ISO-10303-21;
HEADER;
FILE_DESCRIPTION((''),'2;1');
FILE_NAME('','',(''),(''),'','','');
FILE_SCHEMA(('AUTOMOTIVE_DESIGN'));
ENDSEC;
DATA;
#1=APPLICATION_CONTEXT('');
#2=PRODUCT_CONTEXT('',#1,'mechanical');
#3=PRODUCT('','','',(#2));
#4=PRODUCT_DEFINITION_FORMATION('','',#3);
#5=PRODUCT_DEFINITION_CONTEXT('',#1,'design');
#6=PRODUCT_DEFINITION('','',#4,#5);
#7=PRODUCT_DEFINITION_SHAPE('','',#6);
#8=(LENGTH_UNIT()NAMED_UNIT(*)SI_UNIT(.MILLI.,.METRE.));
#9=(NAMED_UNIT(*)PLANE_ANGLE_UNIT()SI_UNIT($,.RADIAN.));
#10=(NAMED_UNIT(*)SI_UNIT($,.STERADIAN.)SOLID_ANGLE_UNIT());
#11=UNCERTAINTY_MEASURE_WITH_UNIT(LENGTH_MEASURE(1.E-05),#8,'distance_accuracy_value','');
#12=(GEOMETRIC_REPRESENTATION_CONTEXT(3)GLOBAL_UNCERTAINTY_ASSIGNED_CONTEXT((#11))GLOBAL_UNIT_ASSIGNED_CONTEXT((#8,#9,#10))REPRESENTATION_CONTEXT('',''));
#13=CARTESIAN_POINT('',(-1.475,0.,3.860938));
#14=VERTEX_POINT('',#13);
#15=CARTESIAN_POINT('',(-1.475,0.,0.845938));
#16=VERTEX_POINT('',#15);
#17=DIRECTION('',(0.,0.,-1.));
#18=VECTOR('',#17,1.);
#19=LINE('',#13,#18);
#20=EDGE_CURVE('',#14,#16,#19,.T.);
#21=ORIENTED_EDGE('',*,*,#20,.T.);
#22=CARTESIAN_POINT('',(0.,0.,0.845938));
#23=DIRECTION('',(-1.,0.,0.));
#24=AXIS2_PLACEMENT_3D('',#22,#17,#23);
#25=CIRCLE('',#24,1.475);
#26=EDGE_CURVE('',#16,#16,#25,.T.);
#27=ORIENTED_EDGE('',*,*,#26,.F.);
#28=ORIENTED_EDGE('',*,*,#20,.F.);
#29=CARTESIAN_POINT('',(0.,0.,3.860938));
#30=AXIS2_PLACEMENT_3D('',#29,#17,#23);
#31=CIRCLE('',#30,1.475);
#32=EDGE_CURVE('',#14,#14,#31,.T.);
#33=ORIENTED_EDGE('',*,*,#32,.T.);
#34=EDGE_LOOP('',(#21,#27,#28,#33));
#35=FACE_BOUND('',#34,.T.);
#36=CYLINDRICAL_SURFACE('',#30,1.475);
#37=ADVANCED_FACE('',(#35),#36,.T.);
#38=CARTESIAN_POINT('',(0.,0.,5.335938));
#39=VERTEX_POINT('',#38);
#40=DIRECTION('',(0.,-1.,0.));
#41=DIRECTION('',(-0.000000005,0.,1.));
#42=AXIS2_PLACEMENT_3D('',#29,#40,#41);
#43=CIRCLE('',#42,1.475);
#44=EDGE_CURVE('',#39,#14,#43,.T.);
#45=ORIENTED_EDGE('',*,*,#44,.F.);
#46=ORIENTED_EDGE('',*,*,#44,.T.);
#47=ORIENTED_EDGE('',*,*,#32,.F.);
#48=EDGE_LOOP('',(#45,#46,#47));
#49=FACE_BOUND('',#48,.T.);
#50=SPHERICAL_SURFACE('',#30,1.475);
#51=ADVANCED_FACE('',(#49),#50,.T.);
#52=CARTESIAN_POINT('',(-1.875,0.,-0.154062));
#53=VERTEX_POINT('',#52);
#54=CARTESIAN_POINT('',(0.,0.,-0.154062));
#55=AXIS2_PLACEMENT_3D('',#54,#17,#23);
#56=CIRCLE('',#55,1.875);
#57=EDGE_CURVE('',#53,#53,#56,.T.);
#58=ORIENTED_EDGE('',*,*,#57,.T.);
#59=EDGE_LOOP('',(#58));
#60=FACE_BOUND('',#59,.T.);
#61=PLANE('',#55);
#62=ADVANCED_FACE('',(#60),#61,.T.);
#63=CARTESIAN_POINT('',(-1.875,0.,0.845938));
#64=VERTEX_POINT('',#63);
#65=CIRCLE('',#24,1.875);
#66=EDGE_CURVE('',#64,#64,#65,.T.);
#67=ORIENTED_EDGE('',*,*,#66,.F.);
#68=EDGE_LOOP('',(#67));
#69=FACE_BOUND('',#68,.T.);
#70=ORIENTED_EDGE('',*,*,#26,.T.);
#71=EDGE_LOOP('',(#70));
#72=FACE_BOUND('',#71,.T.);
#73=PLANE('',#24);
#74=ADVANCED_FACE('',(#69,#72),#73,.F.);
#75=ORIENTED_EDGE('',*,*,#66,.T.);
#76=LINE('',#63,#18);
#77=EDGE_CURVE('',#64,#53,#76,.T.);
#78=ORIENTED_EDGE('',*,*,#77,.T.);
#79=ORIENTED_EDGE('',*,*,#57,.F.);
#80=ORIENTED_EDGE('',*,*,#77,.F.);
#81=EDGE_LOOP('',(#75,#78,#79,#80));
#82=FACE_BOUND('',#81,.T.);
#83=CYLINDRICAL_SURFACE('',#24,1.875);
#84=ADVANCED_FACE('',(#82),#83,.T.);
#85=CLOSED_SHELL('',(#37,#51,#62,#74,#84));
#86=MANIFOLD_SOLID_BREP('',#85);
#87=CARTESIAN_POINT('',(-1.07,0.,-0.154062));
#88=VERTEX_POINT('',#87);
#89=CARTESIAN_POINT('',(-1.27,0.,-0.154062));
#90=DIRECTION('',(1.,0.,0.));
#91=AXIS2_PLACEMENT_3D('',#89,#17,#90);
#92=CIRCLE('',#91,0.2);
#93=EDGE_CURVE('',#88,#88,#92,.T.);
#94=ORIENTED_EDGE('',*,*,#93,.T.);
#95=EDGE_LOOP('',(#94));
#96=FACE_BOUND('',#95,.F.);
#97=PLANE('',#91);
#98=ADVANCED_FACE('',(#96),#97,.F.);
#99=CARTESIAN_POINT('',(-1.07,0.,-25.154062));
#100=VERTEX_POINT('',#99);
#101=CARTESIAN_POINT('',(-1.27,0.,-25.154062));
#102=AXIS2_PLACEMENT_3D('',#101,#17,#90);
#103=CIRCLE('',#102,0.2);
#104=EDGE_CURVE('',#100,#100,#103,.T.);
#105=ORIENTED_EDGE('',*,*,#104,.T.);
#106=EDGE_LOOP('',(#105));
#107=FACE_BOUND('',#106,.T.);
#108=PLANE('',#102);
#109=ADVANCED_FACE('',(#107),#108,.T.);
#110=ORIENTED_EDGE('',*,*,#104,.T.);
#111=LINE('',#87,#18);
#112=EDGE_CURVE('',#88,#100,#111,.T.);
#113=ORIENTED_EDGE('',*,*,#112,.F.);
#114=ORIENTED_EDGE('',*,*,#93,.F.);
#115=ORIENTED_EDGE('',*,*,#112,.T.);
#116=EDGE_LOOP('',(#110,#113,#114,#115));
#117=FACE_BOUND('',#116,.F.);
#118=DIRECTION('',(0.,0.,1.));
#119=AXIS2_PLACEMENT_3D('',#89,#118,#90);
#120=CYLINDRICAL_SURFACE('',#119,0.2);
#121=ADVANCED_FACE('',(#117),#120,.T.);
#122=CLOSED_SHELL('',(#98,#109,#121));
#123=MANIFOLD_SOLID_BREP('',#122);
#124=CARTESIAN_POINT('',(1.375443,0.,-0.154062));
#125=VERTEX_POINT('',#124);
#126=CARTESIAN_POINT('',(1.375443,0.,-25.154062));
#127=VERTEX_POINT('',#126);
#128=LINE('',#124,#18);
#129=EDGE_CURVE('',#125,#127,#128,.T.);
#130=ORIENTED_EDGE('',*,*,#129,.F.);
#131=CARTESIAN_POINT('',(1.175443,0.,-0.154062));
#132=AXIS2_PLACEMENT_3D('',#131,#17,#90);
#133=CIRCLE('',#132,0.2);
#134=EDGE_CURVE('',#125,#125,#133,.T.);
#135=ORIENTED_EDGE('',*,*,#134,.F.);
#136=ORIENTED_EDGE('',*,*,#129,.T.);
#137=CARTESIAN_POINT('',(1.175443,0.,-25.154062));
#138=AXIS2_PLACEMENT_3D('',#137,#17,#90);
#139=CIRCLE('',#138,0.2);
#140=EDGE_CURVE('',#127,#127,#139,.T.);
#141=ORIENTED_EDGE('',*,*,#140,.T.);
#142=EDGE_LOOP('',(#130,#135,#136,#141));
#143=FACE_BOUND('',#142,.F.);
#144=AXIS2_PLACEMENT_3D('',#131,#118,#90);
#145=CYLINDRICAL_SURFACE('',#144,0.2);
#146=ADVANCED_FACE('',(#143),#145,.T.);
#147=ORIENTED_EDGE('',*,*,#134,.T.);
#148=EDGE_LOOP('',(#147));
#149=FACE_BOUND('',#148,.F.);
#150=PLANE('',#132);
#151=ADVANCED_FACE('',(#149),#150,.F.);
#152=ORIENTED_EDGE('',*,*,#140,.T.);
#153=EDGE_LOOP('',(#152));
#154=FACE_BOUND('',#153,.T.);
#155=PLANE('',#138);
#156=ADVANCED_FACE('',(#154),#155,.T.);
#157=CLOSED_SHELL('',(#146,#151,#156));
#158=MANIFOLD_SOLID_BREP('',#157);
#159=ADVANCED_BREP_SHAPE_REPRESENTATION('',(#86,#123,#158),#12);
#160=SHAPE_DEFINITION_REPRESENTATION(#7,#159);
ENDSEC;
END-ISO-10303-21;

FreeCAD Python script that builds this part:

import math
import FreeCAD as App
import Part
import Sketcher
from FreeCAD import Vector

doc = App.newDocument("Part")
body = doc.addObject("PartDesign::Body", "Body")

# Sketch on XZ plane
sketch1 = body.newObject("Sketcher::SketchObject", "Sketch")
sketch1.AttachmentSupport = (doc.getObject("XZ_Plane"), [""])
sketch1.MapMode = "FlatFace"
sketch1.addGeometry([
    Part.LineSegment(Vector(0, -0.15, 0), Vector(0, 5.34, 0)),  # 0
    Part.ArcOfCircle(Part.Circle(Vector(0, 3.86, 0), Vector(0, 0, 1), 1.48), math.radians(90), math.radians(180)),  # 1
    Part.LineSegment(Vector(-1.48, 3.86, 0), Vector(-1.48, 0.85, 0)),  # 2
    Part.LineSegment(Vector(-1.48, 0.85, 0), Vector(-1.88, 0.85, 0)),  # 3
    Part.LineSegment(Vector(-1.88, 0.85, 0), Vector(-1.88, -0.15, 0)),  # 4
    Part.LineSegment(Vector(-1.88, -0.15, 0), Vector(0, -0.15, 0)),  # 5
], False)
sketch1.addConstraint([
    Sketcher.Constraint("Coincident", 0, 2, 1, 1),
    Sketcher.Constraint("Tangent", 1, 2, 2, 1),
    Sketcher.Constraint("Coincident", 2, 2, 3, 1),
    Sketcher.Constraint("Coincident", 3, 2, 4, 1),
    Sketcher.Constraint("Coincident", 4, 2, 5, 1),
    Sketcher.Constraint("Coincident", 5, 2, 0, 1),
    Sketcher.Constraint("Vertical", 0),
    Sketcher.Constraint("Vertical", 2),
    Sketcher.Constraint("Horizontal", 3),
    Sketcher.Constraint("Vertical", 4),
    Sketcher.Constraint("Horizontal", 5),
    Sketcher.Constraint("PointOnObject", 1, 3, -2),
    Sketcher.Constraint("PointOnObject", 0, 2, -2),
    Sketcher.Constraint("DistanceY", 4, 2, 4, 1, 1.0),
    Sketcher.Constraint("DistanceX", 3, 2, 3, 1, 0.4),
    Sketcher.Constraint("Radius", 1, 1.475),
    Sketcher.Constraint("DistanceY", 0, 1, 0, 2, 5.49),
    Sketcher.Constraint("DistanceY", -1, 1, 1, 2, 3.860938),
])
revolution = body.newObject("PartDesign::Revolution", "Revolution")
revolution.Profile = sketch1
revolution.ReferenceAxis = (sketch1, ["V_Axis"])
revolution.Angle = 360
body2 = doc.addObject("PartDesign::Body", "Body001")
body2.AllowCompound = True

# Sketch on XY plane
sketch2 = body2.newObject("Sketcher::SketchObject", "Sketch001")
sketch2.AttachmentSupport = (doc.getObject("XY_Plane001"), [""])
sketch2.MapMode = "FlatFace"
sketch2.AttachmentOffset = App.Placement(Vector(0, 0, -0.154062), App.Rotation())
sketch2.addGeometry([
    Part.Circle(Vector(-1.27, 0, 0), Vector(0, 0, 1), 0.2),
    Part.Circle(Vector(1.18, 0, 0), Vector(0, 0, 1), 0.2),
], False)
sketch2.addConstraint([
    Sketcher.Constraint("Equal", 0, 1),
    Sketcher.Constraint("PointOnObject", 0, 3, -1),
    Sketcher.Constraint("PointOnObject", 1, 3, -1),
    Sketcher.Constraint("Diameter", 0, 0.4),
    Sketcher.Constraint("DistanceX", 0, 3, -1, 1, 1.27),
    Sketcher.Constraint("DistanceX", -1, 1, 1, 3, 1.175443),
])
pad1 = body2.newObject("PartDesign::Pad", "Pad")
pad1.Profile = sketch2
pad1.Length = 25
pad1.Reversed = True

doc.recompute()
